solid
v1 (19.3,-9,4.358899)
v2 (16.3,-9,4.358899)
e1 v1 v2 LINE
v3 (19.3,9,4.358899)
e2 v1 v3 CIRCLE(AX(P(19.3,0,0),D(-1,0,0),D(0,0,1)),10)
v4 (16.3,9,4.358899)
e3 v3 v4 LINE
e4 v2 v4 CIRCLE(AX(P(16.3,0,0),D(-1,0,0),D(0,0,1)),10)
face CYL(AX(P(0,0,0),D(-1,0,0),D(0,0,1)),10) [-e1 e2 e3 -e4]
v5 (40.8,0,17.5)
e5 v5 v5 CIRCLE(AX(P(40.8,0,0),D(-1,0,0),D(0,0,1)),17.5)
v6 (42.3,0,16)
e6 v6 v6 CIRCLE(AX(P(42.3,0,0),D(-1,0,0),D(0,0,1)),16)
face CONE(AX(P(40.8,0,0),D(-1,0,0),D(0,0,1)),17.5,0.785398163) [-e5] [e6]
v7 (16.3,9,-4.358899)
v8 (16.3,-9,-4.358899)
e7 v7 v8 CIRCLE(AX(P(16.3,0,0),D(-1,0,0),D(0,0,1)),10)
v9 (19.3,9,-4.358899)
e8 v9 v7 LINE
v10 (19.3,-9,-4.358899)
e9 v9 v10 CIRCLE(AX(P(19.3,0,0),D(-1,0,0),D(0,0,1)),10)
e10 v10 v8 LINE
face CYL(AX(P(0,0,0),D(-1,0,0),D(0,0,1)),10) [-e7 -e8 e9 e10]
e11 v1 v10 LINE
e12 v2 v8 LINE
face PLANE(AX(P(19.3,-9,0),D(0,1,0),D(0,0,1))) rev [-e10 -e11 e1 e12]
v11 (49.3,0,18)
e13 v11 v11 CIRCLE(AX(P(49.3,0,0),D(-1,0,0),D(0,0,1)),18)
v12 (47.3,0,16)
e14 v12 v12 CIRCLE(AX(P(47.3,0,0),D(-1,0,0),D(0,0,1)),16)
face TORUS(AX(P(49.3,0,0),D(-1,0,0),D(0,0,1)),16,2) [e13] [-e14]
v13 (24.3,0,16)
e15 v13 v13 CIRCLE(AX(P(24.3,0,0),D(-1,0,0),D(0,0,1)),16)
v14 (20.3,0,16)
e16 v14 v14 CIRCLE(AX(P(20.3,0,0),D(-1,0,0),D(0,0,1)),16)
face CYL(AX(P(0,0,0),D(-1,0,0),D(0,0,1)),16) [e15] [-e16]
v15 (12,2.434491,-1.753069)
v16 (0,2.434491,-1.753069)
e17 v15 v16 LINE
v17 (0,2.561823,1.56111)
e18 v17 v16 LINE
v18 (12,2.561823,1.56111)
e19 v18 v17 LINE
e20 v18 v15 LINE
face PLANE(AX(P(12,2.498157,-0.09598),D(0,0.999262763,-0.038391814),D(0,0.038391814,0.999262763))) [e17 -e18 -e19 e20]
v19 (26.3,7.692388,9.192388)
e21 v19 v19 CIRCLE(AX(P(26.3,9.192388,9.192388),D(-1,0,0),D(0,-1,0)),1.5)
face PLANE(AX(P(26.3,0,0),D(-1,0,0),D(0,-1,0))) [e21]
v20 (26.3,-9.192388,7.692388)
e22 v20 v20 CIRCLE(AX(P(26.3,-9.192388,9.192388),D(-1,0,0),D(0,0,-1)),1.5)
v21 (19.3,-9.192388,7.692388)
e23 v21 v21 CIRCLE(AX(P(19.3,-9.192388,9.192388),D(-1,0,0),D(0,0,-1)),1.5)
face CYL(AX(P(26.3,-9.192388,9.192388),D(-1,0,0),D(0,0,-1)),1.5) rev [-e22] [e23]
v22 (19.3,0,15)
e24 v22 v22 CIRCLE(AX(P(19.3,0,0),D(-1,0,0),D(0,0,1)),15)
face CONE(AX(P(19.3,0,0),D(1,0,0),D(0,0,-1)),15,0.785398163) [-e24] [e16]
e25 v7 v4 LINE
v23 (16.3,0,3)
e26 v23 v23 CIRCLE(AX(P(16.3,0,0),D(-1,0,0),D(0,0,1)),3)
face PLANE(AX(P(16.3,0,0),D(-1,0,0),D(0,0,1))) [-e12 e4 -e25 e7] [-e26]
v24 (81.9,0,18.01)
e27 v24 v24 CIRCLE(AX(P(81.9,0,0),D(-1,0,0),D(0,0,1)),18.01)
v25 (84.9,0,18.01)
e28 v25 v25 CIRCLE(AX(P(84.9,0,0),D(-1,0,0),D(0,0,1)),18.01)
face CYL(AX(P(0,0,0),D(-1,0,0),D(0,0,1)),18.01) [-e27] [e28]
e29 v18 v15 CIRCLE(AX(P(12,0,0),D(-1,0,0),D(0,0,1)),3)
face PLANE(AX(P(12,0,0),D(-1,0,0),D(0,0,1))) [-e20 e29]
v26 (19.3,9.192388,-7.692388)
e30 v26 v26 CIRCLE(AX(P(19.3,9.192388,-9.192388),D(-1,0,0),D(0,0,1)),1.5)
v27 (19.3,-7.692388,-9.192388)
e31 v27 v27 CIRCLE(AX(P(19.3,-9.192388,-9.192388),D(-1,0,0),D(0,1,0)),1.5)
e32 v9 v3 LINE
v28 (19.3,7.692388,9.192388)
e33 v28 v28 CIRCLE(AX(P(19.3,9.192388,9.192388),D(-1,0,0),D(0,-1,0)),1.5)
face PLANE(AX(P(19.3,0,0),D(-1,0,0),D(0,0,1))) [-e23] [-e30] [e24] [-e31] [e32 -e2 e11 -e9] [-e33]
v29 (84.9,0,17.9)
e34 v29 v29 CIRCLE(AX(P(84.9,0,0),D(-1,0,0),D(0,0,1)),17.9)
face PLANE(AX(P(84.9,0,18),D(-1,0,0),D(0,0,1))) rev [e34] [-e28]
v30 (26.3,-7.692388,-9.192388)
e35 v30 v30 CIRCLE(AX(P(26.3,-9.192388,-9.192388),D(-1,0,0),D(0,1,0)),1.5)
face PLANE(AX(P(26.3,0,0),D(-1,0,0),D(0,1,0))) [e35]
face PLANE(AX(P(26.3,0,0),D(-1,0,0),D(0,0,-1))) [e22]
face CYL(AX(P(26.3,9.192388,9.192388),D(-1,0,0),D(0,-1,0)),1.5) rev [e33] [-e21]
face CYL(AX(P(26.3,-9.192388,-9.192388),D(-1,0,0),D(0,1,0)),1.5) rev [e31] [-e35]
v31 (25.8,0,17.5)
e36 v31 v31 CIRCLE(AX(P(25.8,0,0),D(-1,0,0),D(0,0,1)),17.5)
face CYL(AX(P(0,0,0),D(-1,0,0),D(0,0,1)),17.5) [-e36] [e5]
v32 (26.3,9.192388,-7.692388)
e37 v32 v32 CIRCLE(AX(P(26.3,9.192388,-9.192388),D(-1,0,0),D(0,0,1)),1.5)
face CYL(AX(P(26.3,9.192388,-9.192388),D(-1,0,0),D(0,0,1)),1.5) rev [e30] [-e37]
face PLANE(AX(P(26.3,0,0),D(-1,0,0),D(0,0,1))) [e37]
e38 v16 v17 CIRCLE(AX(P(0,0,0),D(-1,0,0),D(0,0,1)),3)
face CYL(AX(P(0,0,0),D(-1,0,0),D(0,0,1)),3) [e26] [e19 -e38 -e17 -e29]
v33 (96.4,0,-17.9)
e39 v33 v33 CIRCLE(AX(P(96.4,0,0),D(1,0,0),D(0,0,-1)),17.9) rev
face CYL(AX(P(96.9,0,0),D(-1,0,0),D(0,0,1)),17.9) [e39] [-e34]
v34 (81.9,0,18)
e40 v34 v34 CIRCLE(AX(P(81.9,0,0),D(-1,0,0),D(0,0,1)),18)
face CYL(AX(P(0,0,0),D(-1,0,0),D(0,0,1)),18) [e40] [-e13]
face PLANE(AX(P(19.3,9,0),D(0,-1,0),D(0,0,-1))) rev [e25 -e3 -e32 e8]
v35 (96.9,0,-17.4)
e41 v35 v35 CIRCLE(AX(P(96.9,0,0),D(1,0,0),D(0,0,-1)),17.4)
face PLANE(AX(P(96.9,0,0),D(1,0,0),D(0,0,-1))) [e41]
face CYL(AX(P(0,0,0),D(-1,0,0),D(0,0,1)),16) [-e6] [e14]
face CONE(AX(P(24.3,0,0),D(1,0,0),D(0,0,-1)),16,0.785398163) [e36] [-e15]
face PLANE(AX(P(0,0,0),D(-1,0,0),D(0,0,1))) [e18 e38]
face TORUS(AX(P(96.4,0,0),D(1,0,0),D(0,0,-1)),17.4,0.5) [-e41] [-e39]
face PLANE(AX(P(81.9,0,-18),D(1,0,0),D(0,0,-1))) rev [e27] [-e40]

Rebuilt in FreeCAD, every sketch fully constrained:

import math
import FreeCAD as App
import Part
import Sketcher
from FreeCAD import Vector
Q = App.Units.Quantity


def edges_at(feature, points):
    """Names of the edges that pass closest to the given points."""
    edges = feature.Shape.Edges
    near = lambda p: min(range(len(edges)), key=lambda i: edges[i].distToShape(Part.Vertex(*p))[0])
    return sorted({f"Edge{near(p) + 1}" for p in points})

doc = App.newDocument("Part")
body = doc.addObject("PartDesign::Body", "Body")

sketch1 = doc.addObject("Sketcher::SketchObject", "Sketch")
body.addObject(sketch1)
sketch1.AttachmentSupport = (doc.XZ_Plane, [""])
sketch1.MapMode = "FlatFace"
sketch1.addGeometry(Part.LineSegment(Vector(0, -3, 0), Vector(0, 0, 0)), False)
sketch1.addGeometry(Part.LineSegment(Vector(0, 0, 0), Vector(86.4, 0, 0)), False)
sketch1.addGeometry(Part.LineSegment(Vector(86.4, 0, 0), Vector(86.4, -18, 0)), False)
sketch1.addGeometry(Part.LineSegment(Vector(86.4, -18, 0), Vector(49.3, -18, 0)), False)
sketch1.addGeometry(Part.ArcOfCircle(Part.Circle(Vector(49.3, -16, 0), Vector(0, 0, 1), 2), math.radians(-180), math.radians(-90)), False)
sketch1.addGeometry(Part.LineSegment(Vector(47.3, -16, 0), Vector(42.3, -16, 0)), False)
sketch1.addGeometry(Part.LineSegment(Vector(42.3, -16, 0), Vector(40.8, -17.5, 0)), False)
sketch1.addGeometry(Part.LineSegment(Vector(40.8, -17.5, 0), Vector(25.8, -17.5, 0)), False)
sketch1.addGeometry(Part.LineSegment(Vector(25.8, -17.5, 0), Vector(24.3, -16, 0)), False)
sketch1.addGeometry(Part.LineSegment(Vector(24.3, -16, 0), Vector(20.3, -16, 0)), False)
sketch1.addGeometry(Part.LineSegment(Vector(20.3, -16, 0), Vector(19.3, -15, 0)), False)
sketch1.addGeometry(Part.LineSegment(Vector(19.3, -15, 0), Vector(19.3, -10, 0)), False)
sketch1.addGeometry(Part.LineSegment(Vector(19.3, -10, 0), Vector(16.3, -10, 0)), False)
sketch1.addGeometry(Part.LineSegment(Vector(16.3, -10, 0), Vector(16.3, -3, 0)), False)
sketch1.addGeometry(Part.LineSegment(Vector(16.3, -3, 0), Vector(0, -3, 0)), False)
sketch1.addConstraint(Sketcher.Constraint("Coincident", 0, 2, 1, 1))
sketch1.addConstraint(Sketcher.Constraint("Coincident", 1, 2, 2, 1))
sketch1.addConstraint(Sketcher.Constraint("Coincident", 2, 2, 3, 1))
sketch1.addConstraint(Sketcher.Constraint("Tangent", 3, 2, 4, 2))
sketch1.addConstraint(Sketcher.Constraint("Coincident", 4, 1, 5, 1))
sketch1.addConstraint(Sketcher.Constraint("Coincident", 5, 2, 6, 1))
sketch1.addConstraint(Sketcher.Constraint("Coincident", 6, 2, 7, 1))
sketch1.addConstraint(Sketcher.Constraint("Coincident", 7, 2, 8, 1))
sketch1.addConstraint(Sketcher.Constraint("Coincident", 8, 2, 9, 1))
sketch1.addConstraint(Sketcher.Constraint("Coincident", 9, 2, 10, 1))
sketch1.addConstraint(Sketcher.Constraint("Coincident", 10, 2, 11, 1))
sketch1.addConstraint(Sketcher.Constraint("Coincident", 11, 2, 12, 1))
sketch1.addConstraint(Sketcher.Constraint("Coincident", 12, 2, 13, 1))
sketch1.addConstraint(Sketcher.Constraint("Coincident", 13, 2, 14, 1))
sketch1.addConstraint(Sketcher.Constraint("Coincident", 14, 2, 0, 1))
sketch1.addConstraint(Sketcher.Constraint("Vertical", 0))
sketch1.addConstraint(Sketcher.Constraint("Horizontal", 1))
sketch1.addConstraint(Sketcher.Constraint("Vertical", 2))
sketch1.addConstraint(Sketcher.Constraint("Horizontal", 3))
sketch1.addConstraint(Sketcher.Constraint("Horizontal", 5))
sketch1.addConstraint(Sketcher.Constraint("Horizontal", 7))
sketch1.addConstraint(Sketcher.Constraint("Horizontal", 9))
sketch1.addConstraint(Sketcher.Constraint("Vertical", 11))
sketch1.addConstraint(Sketcher.Constraint("Horizontal", 12))
sketch1.addConstraint(Sketcher.Constraint("Vertical", 13))
sketch1.addConstraint(Sketcher.Constraint("Horizontal", 14))
sketch1.addConstraint(Sketcher.Constraint("Coincident", 0, 2, -1, 1))
sketch1.addConstraint(Sketcher.Constraint("Perpendicular", 6, 8))
sketch1.addConstraint(Sketcher.Constraint("Parallel", 8, 10))
sketch1.addConstraint(Sketcher.Constraint("Horizontal", 5, 2, 8, 2))
sketch1.addConstraint(Sketcher.Constraint("Equal", 12, 0))
sketch1.addConstraint(Sketcher.Constraint("Equal", 5, 11))
sketch1.addConstraint(Sketcher.Constraint("Equal", 6, 8))
sketch1.addConstraint(Sketcher.Constraint("Radius", 4, Q("2 mm")))
sketch1.addConstraint(Sketcher.Constraint("DistanceX", 5, 2, 5, 1, Q("5 mm")))
sketch1.addConstraint(Sketcher.Constraint("DistanceX", 7, 2, 7, 1, Q("15 mm")))
sketch1.addConstraint(Sketcher.Constraint("DistanceX", 9, 2, 9, 1, Q("4 mm")))
sketch1.addConstraint(Sketcher.Constraint("DistanceX", 12, 2, 12, 1, Q("3 mm")))
sketch1.addConstraint(Sketcher.Constraint("DistanceY", 2, 2, 2, 1, Q("18 mm")))
sketch1.addConstraint(Sketcher.Constraint("DistanceY", 13, 1, 13, 2, Q("7 mm")))
sketch1.addConstraint(Sketcher.Constraint("DistanceX", 1, 1, 1, 2, Q("86.4 mm")))
sketch1.addConstraint(Sketcher.Constraint("DistanceX", 3, 2, 3, 1, Q("37.1 mm")))
sketch1.addConstraint(Sketcher.Constraint("DistanceX", 14, 2, 14, 1, Q("16.3 mm")))
sketch1.addConstraint(Sketcher.Constraint("DistanceY", 4, 1, -1, 1, Q("16 mm")))
revolution = doc.addObject("PartDesign::Revolution", "Revolution")
body.addObject(revolution)
revolution.Profile = sketch1
revolution.ReferenceAxis = (sketch1, ["H_Axis"])
revolution.Angle = 360

sketch2 = doc.addObject("Sketcher::SketchObject", "Sketch001")
body.addObject(sketch2)
sketch2.AttachmentSupport = (doc.YZ_Plane, [""])
sketch2.MapMode = "FlatFace"
sketch2.AttachmentOffset = App.Placement(Vector(0, 0, 86.4), App.Rotation())
sketch2.addGeometry(Part.Circle(Vector(0, 0, 0), Vector(0, 0, 1), 18), False)
sketch2.addConstraint(Sketcher.Constraint("Coincident", 0, 3, -1, 1))
sketch2.addConstraint(Sketcher.Constraint("Diameter", 0, Q("36 mm")))
pad1 = doc.addObject("PartDesign::Pad", "Pad")
body.addObject(pad1)
pad1.Profile = sketch2
pad1.Length = 14

sketch3 = doc.addObject("Sketcher::SketchObject", "Sketch002")
body.addObject(sketch3)
sketch3.AttachmentSupport = (doc.YZ_Plane, [""])
sketch3.MapMode = "FlatFace"
sketch3.AttachmentOffset = App.Placement(Vector(0, 0, 100.4), App.Rotation())
sketch3.addGeometry(Part.Circle(Vector(0, 0, 0), Vector(0, 0, 1), 18), False)
sketch3.addConstraint(Sketcher.Constraint("Coincident", 0, 3, -1, 1))
sketch3.addConstraint(Sketcher.Constraint("Diameter", 0, Q("36 mm")))
pocket1 = doc.addObject("PartDesign::Pocket", "Pocket")
body.addObject(pocket1)
pocket1.Profile = sketch3
pocket1.Length = 3.5

sketch4 = doc.addObject("Sketcher::SketchObject", "Sketch003")
body.addObject(sketch4)
sketch4.AttachmentSupport = (doc.YZ_Plane, [""])
sketch4.MapMode = "FlatFace"
sketch4.addGeometry(Part.LineSegment(Vector(2.4, -1.8, 0), Vector(2.6, 1.6, 0)), False)
sketch4.addGeometry(Part.ArcOfCircle(Part.Circle(Vector(0, 0, 0), Vector(0, 0, 1), 3), math.radians(-36), math.radians(31)), False)
sketch4.addConstraint(Sketcher.Constraint("Coincident", 0, 1, 1, 1))
sketch4.addConstraint(Sketcher.Constraint("Coincident", 1, 2, 0, 2))
sketch4.addConstraint(Sketcher.Constraint("Coincident", 1, 3, -1, 1))
sketch4.addConstraint(Sketcher.Constraint("Radius", 1, Q("3 mm")))
sketch4.addConstraint(Sketcher.Constraint("DistanceX", -1, 1, 0, 1, Q("2.434491 mm")))
sketch4.addConstraint(Sketcher.Constraint("DistanceY", -1, 1, 1, 2, Q("1.56111 mm")))
pocket2 = doc.addObject("PartDesign::Pocket", "Pocket001")
body.addObject(pocket2)
pocket2.Profile = sketch4
pocket2.Length = 12
pocket2.Reversed = True

sketch5 = doc.addObject("Sketcher::SketchObject", "Sketch004")
body.addObject(sketch5)
sketch5.AttachmentSupport = (doc.XZ_Plane, [""])
sketch5.MapMode = "FlatFace"
sketch5.addGeometry(Part.LineSegment(Vector(84.9, 17.9, 0), Vector(84.9, 18, 0)), False)
sketch5.addGeometry(Part.LineSegment(Vector(84.9, 18, 0), Vector(96.9, 18, 0)), False)
sketch5.addGeometry(Part.LineSegment(Vector(96.9, 18, 0), Vector(96.9, 17.9, 0)), False)
sketch5.addGeometry(Part.LineSegment(Vector(96.9, 17.9, 0), Vector(84.9, 17.9, 0)), False)
sketch5.addConstraint(Sketcher.Constraint("Coincident", 0, 2, 1, 1))
sketch5.addConstraint(Sketcher.Constraint("Coincident", 1, 2, 2, 1))
sketch5.addConstraint(Sketcher.Constraint("Coincident", 2, 2, 3, 1))
sketch5.addConstraint(Sketcher.Constraint("Coincident", 3, 2, 0, 1))
sketch5.addConstraint(Sketcher.Constraint("Vertical", 0))
sketch5.addConstraint(Sketcher.Constraint("Horizontal", 1))
sketch5.addConstraint(Sketcher.Constraint("Vertical", 2))
sketch5.addConstraint(Sketcher.Constraint("Horizontal", 3))
sketch5.addConstraint(Sketcher.Constraint("DistanceX", 1, 1, 1, 2, Q("12 mm")))
sketch5.addConstraint(Sketcher.Constraint("DistanceY", 0, 1, 0, 2, Q("0.1 mm")))
sketch5.addConstraint(Sketcher.Constraint("DistanceY", -1, 1, 0, 2, Q("18 mm")))
sketch5.addConstraint(Sketcher.Constraint("DistanceX", -1, 1, 0, 2, Q("84.9 mm")))

sketch6 = doc.addObject("Sketcher::SketchObject", "Sketch005")
body.addObject(sketch6)
sketch6.AttachmentSupport = (doc.YZ_Plane, [""])
sketch6.MapMode = "FlatFace"
sketch6.AttachmentOffset = App.Placement(Vector(0, 0, 96.9), App.Rotation())
sketch6.addGeometry(Part.Circle(Vector(0, 0, 0), Vector(0, 0, 1), 18), False)
sketch6.addConstraint(Sketcher.Constraint("Coincident", 0, 3, -1, 1))
sketch6.addConstraint(Sketcher.Constraint("Diameter", 0, Q("35.8 mm")))
doc.recompute()

subtractivepipe = doc.addObject("PartDesign::SubtractivePipe", "SubtractivePipe")
body.addObject(subtractivepipe)
subtractivepipe.Profile = sketch5
subtractivepipe.Spine = (sketch6, ["Edge1"])
doc.recompute()

fillet = doc.addObject("PartDesign::Fillet", "Fillet")
body.addObject(fillet)
fillet.Base = (subtractivepipe, edges_at(subtractivepipe, [(96.9, 0, 17.9)]))
fillet.Radius = 0.5

sketch7 = doc.addObject("Sketcher::SketchObject", "Sketch006")
body.addObject(sketch7)
sketch7.AttachmentSupport = (doc.XZ_Plane, [""])
sketch7.MapMode = "FlatFace"
sketch7.addGeometry(Part.LineSegment(Vector(81.9, -18.01, 0), Vector(81.9, -18, 0)), False)
sketch7.addGeometry(Part.LineSegment(Vector(81.9, -18, 0), Vector(84.9, -18, 0)), False)
sketch7.addGeometry(Part.LineSegment(Vector(84.9, -18, 0), Vector(84.9, -18.01, 0)), False)
sketch7.addGeometry(Part.LineSegment(Vector(84.9, -18.01, 0), Vector(81.9, -18.01, 0)), False)
sketch7.addConstraint(Sketcher.Constraint("Coincident", 0, 2, 1, 1))
sketch7.addConstraint(Sketcher.Constraint("Coincident", 1, 2, 2, 1))
sketch7.addConstraint(Sketcher.Constraint("Coincident", 2, 2, 3, 1))
sketch7.addConstraint(Sketcher.Constraint("Coincident", 3, 2, 0, 1))
sketch7.addConstraint(Sketcher.Constraint("Vertical", 0))
sketch7.addConstraint(Sketcher.Constraint("Horizontal", 1))
sketch7.addConstraint(Sketcher.Constraint("Vertical", 2))
sketch7.addConstraint(Sketcher.Constraint("Horizontal", 3))
sketch7.addConstraint(Sketcher.Constraint("DistanceX", 1, 1, 1, 2, Q("3 mm")))
sketch7.addConstraint(Sketcher.Constraint("DistanceY", 0, 2, -1, 1, Q("18 mm")))
sketch7.addConstraint(Sketcher.Constraint("DistanceY", 0, 1, 0, 2, Q("0.01 mm")))
sketch7.addConstraint(Sketcher.Constraint("DistanceX", -1, 1, 0, 2, Q("81.9 mm")))
revolution2 = doc.addObject("PartDesign::Revolution", "Revolution001")
body.addObject(revolution2)
revolution2.Profile = sketch7
revolution2.ReferenceAxis = (sketch7, ["H_Axis"])
revolution2.Angle = 360

sketch8 = doc.addObject("Sketcher::SketchObject", "Sketch007")
body.addObject(sketch8)
sketch8.AttachmentSupport = (doc.YZ_Plane, [""])
sketch8.MapMode = "FlatFace"
sketch8.AttachmentOffset = App.Placement(Vector(0, 0, 16.3), App.Rotation())
sketch8.addGeometry(Part.ArcOfCircle(Part.Circle(Vector(0, 0, 0), Vector(0, 0, 1), 10), math.radians(-26), math.radians(26)), False)
sketch8.addGeometry(Part.LineSegment(Vector(9, -4, 0), Vector(9, 4, 0)), False)
sketch8.addGeometry(Part.LineSegment(Vector(-9, 4, 0), Vector(-9, -4, 0)), False)
sketch8.addGeometry(Part.ArcOfCircle(Part.Circle(Vector(0, 0, 0), Vector(0, 0, 1), 10), math.radians(154), math.radians(206)), False)
sketch8.addConstraint(Sketcher.Constraint("Coincident", 0, 1, 1, 1))
sketch8.addConstraint(Sketcher.Constraint("Coincident", 1, 2, 0, 2))
sketch8.addConstraint(Sketcher.Constraint("Coincident", 2, 1, 3, 1))
sketch8.addConstraint(Sketcher.Constraint("Coincident", 3, 2, 2, 2))
sketch8.addConstraint(Sketcher.Constraint("Vertical", 1))
sketch8.addConstraint(Sketcher.Constraint("Vertical", 2))
sketch8.addConstraint(Sketcher.Constraint("Coincident", 0, 3, -1, 1))
sketch8.addConstraint(Sketcher.Constraint("Coincident", 3, 3, -1, 1))
sketch8.addConstraint(Sketcher.Constraint("Equal", 0, 3))
sketch8.addConstraint(Sketcher.Constraint("Horizontal", 1, 2, 2, 1))
sketch8.addConstraint(Sketcher.Constraint("Radius", 0, Q("10 mm")))
sketch8.addConstraint(Sketcher.Constraint("DistanceX", -1, 1, 0, 1, Q("9 mm")))
pocket3 = doc.addObject("PartDesign::Pocket", "Pocket002")
body.addObject(pocket3)
pocket3.Profile = sketch8
pocket3.Length = 3
pocket3.Reversed = True

sketch9 = doc.addObject("Sketcher::SketchObject", "Sketch008")
body.addObject(sketch9)
sketch9.AttachmentSupport = (doc.YZ_Plane, [""])
sketch9.MapMode = "FlatFace"
sketch9.AttachmentOffset = App.Placement(Vector(0, 0, 19.3), App.Rotation())
sketch9.addGeometry(Part.Circle(Vector(9.2, -9.2, 0), Vector(0, 0, 1), 1.5), False)
sketch9.addConstraint(Sketcher.Constraint("Diameter", 0, Q("3 mm")))
sketch9.addConstraint(Sketcher.Constraint("DistanceX", -1, 1, 0, 3, Q("9.192388 mm")))
sketch9.addConstraint(Sketcher.Constraint("DistanceY", 0, 3, -1, 1, Q("9.192388 mm")))
pocket4 = doc.addObject("PartDesign::Pocket", "Pocket003")
body.addObject(pocket4)
pocket4.Profile = sketch9
pocket4.Length = 7
pocket4.Reversed = True
doc.recompute()

polarpattern = doc.addObject("PartDesign::PolarPattern", "PolarPattern")
body.addObject(polarpattern)
polarpattern.Originals = [pocket4]
polarpattern.Axis = (doc.X_Axis, [""])
polarpattern.Angle = 360
polarpattern.Occurrences = 4
body.Tip = polarpattern

doc.recompute()
